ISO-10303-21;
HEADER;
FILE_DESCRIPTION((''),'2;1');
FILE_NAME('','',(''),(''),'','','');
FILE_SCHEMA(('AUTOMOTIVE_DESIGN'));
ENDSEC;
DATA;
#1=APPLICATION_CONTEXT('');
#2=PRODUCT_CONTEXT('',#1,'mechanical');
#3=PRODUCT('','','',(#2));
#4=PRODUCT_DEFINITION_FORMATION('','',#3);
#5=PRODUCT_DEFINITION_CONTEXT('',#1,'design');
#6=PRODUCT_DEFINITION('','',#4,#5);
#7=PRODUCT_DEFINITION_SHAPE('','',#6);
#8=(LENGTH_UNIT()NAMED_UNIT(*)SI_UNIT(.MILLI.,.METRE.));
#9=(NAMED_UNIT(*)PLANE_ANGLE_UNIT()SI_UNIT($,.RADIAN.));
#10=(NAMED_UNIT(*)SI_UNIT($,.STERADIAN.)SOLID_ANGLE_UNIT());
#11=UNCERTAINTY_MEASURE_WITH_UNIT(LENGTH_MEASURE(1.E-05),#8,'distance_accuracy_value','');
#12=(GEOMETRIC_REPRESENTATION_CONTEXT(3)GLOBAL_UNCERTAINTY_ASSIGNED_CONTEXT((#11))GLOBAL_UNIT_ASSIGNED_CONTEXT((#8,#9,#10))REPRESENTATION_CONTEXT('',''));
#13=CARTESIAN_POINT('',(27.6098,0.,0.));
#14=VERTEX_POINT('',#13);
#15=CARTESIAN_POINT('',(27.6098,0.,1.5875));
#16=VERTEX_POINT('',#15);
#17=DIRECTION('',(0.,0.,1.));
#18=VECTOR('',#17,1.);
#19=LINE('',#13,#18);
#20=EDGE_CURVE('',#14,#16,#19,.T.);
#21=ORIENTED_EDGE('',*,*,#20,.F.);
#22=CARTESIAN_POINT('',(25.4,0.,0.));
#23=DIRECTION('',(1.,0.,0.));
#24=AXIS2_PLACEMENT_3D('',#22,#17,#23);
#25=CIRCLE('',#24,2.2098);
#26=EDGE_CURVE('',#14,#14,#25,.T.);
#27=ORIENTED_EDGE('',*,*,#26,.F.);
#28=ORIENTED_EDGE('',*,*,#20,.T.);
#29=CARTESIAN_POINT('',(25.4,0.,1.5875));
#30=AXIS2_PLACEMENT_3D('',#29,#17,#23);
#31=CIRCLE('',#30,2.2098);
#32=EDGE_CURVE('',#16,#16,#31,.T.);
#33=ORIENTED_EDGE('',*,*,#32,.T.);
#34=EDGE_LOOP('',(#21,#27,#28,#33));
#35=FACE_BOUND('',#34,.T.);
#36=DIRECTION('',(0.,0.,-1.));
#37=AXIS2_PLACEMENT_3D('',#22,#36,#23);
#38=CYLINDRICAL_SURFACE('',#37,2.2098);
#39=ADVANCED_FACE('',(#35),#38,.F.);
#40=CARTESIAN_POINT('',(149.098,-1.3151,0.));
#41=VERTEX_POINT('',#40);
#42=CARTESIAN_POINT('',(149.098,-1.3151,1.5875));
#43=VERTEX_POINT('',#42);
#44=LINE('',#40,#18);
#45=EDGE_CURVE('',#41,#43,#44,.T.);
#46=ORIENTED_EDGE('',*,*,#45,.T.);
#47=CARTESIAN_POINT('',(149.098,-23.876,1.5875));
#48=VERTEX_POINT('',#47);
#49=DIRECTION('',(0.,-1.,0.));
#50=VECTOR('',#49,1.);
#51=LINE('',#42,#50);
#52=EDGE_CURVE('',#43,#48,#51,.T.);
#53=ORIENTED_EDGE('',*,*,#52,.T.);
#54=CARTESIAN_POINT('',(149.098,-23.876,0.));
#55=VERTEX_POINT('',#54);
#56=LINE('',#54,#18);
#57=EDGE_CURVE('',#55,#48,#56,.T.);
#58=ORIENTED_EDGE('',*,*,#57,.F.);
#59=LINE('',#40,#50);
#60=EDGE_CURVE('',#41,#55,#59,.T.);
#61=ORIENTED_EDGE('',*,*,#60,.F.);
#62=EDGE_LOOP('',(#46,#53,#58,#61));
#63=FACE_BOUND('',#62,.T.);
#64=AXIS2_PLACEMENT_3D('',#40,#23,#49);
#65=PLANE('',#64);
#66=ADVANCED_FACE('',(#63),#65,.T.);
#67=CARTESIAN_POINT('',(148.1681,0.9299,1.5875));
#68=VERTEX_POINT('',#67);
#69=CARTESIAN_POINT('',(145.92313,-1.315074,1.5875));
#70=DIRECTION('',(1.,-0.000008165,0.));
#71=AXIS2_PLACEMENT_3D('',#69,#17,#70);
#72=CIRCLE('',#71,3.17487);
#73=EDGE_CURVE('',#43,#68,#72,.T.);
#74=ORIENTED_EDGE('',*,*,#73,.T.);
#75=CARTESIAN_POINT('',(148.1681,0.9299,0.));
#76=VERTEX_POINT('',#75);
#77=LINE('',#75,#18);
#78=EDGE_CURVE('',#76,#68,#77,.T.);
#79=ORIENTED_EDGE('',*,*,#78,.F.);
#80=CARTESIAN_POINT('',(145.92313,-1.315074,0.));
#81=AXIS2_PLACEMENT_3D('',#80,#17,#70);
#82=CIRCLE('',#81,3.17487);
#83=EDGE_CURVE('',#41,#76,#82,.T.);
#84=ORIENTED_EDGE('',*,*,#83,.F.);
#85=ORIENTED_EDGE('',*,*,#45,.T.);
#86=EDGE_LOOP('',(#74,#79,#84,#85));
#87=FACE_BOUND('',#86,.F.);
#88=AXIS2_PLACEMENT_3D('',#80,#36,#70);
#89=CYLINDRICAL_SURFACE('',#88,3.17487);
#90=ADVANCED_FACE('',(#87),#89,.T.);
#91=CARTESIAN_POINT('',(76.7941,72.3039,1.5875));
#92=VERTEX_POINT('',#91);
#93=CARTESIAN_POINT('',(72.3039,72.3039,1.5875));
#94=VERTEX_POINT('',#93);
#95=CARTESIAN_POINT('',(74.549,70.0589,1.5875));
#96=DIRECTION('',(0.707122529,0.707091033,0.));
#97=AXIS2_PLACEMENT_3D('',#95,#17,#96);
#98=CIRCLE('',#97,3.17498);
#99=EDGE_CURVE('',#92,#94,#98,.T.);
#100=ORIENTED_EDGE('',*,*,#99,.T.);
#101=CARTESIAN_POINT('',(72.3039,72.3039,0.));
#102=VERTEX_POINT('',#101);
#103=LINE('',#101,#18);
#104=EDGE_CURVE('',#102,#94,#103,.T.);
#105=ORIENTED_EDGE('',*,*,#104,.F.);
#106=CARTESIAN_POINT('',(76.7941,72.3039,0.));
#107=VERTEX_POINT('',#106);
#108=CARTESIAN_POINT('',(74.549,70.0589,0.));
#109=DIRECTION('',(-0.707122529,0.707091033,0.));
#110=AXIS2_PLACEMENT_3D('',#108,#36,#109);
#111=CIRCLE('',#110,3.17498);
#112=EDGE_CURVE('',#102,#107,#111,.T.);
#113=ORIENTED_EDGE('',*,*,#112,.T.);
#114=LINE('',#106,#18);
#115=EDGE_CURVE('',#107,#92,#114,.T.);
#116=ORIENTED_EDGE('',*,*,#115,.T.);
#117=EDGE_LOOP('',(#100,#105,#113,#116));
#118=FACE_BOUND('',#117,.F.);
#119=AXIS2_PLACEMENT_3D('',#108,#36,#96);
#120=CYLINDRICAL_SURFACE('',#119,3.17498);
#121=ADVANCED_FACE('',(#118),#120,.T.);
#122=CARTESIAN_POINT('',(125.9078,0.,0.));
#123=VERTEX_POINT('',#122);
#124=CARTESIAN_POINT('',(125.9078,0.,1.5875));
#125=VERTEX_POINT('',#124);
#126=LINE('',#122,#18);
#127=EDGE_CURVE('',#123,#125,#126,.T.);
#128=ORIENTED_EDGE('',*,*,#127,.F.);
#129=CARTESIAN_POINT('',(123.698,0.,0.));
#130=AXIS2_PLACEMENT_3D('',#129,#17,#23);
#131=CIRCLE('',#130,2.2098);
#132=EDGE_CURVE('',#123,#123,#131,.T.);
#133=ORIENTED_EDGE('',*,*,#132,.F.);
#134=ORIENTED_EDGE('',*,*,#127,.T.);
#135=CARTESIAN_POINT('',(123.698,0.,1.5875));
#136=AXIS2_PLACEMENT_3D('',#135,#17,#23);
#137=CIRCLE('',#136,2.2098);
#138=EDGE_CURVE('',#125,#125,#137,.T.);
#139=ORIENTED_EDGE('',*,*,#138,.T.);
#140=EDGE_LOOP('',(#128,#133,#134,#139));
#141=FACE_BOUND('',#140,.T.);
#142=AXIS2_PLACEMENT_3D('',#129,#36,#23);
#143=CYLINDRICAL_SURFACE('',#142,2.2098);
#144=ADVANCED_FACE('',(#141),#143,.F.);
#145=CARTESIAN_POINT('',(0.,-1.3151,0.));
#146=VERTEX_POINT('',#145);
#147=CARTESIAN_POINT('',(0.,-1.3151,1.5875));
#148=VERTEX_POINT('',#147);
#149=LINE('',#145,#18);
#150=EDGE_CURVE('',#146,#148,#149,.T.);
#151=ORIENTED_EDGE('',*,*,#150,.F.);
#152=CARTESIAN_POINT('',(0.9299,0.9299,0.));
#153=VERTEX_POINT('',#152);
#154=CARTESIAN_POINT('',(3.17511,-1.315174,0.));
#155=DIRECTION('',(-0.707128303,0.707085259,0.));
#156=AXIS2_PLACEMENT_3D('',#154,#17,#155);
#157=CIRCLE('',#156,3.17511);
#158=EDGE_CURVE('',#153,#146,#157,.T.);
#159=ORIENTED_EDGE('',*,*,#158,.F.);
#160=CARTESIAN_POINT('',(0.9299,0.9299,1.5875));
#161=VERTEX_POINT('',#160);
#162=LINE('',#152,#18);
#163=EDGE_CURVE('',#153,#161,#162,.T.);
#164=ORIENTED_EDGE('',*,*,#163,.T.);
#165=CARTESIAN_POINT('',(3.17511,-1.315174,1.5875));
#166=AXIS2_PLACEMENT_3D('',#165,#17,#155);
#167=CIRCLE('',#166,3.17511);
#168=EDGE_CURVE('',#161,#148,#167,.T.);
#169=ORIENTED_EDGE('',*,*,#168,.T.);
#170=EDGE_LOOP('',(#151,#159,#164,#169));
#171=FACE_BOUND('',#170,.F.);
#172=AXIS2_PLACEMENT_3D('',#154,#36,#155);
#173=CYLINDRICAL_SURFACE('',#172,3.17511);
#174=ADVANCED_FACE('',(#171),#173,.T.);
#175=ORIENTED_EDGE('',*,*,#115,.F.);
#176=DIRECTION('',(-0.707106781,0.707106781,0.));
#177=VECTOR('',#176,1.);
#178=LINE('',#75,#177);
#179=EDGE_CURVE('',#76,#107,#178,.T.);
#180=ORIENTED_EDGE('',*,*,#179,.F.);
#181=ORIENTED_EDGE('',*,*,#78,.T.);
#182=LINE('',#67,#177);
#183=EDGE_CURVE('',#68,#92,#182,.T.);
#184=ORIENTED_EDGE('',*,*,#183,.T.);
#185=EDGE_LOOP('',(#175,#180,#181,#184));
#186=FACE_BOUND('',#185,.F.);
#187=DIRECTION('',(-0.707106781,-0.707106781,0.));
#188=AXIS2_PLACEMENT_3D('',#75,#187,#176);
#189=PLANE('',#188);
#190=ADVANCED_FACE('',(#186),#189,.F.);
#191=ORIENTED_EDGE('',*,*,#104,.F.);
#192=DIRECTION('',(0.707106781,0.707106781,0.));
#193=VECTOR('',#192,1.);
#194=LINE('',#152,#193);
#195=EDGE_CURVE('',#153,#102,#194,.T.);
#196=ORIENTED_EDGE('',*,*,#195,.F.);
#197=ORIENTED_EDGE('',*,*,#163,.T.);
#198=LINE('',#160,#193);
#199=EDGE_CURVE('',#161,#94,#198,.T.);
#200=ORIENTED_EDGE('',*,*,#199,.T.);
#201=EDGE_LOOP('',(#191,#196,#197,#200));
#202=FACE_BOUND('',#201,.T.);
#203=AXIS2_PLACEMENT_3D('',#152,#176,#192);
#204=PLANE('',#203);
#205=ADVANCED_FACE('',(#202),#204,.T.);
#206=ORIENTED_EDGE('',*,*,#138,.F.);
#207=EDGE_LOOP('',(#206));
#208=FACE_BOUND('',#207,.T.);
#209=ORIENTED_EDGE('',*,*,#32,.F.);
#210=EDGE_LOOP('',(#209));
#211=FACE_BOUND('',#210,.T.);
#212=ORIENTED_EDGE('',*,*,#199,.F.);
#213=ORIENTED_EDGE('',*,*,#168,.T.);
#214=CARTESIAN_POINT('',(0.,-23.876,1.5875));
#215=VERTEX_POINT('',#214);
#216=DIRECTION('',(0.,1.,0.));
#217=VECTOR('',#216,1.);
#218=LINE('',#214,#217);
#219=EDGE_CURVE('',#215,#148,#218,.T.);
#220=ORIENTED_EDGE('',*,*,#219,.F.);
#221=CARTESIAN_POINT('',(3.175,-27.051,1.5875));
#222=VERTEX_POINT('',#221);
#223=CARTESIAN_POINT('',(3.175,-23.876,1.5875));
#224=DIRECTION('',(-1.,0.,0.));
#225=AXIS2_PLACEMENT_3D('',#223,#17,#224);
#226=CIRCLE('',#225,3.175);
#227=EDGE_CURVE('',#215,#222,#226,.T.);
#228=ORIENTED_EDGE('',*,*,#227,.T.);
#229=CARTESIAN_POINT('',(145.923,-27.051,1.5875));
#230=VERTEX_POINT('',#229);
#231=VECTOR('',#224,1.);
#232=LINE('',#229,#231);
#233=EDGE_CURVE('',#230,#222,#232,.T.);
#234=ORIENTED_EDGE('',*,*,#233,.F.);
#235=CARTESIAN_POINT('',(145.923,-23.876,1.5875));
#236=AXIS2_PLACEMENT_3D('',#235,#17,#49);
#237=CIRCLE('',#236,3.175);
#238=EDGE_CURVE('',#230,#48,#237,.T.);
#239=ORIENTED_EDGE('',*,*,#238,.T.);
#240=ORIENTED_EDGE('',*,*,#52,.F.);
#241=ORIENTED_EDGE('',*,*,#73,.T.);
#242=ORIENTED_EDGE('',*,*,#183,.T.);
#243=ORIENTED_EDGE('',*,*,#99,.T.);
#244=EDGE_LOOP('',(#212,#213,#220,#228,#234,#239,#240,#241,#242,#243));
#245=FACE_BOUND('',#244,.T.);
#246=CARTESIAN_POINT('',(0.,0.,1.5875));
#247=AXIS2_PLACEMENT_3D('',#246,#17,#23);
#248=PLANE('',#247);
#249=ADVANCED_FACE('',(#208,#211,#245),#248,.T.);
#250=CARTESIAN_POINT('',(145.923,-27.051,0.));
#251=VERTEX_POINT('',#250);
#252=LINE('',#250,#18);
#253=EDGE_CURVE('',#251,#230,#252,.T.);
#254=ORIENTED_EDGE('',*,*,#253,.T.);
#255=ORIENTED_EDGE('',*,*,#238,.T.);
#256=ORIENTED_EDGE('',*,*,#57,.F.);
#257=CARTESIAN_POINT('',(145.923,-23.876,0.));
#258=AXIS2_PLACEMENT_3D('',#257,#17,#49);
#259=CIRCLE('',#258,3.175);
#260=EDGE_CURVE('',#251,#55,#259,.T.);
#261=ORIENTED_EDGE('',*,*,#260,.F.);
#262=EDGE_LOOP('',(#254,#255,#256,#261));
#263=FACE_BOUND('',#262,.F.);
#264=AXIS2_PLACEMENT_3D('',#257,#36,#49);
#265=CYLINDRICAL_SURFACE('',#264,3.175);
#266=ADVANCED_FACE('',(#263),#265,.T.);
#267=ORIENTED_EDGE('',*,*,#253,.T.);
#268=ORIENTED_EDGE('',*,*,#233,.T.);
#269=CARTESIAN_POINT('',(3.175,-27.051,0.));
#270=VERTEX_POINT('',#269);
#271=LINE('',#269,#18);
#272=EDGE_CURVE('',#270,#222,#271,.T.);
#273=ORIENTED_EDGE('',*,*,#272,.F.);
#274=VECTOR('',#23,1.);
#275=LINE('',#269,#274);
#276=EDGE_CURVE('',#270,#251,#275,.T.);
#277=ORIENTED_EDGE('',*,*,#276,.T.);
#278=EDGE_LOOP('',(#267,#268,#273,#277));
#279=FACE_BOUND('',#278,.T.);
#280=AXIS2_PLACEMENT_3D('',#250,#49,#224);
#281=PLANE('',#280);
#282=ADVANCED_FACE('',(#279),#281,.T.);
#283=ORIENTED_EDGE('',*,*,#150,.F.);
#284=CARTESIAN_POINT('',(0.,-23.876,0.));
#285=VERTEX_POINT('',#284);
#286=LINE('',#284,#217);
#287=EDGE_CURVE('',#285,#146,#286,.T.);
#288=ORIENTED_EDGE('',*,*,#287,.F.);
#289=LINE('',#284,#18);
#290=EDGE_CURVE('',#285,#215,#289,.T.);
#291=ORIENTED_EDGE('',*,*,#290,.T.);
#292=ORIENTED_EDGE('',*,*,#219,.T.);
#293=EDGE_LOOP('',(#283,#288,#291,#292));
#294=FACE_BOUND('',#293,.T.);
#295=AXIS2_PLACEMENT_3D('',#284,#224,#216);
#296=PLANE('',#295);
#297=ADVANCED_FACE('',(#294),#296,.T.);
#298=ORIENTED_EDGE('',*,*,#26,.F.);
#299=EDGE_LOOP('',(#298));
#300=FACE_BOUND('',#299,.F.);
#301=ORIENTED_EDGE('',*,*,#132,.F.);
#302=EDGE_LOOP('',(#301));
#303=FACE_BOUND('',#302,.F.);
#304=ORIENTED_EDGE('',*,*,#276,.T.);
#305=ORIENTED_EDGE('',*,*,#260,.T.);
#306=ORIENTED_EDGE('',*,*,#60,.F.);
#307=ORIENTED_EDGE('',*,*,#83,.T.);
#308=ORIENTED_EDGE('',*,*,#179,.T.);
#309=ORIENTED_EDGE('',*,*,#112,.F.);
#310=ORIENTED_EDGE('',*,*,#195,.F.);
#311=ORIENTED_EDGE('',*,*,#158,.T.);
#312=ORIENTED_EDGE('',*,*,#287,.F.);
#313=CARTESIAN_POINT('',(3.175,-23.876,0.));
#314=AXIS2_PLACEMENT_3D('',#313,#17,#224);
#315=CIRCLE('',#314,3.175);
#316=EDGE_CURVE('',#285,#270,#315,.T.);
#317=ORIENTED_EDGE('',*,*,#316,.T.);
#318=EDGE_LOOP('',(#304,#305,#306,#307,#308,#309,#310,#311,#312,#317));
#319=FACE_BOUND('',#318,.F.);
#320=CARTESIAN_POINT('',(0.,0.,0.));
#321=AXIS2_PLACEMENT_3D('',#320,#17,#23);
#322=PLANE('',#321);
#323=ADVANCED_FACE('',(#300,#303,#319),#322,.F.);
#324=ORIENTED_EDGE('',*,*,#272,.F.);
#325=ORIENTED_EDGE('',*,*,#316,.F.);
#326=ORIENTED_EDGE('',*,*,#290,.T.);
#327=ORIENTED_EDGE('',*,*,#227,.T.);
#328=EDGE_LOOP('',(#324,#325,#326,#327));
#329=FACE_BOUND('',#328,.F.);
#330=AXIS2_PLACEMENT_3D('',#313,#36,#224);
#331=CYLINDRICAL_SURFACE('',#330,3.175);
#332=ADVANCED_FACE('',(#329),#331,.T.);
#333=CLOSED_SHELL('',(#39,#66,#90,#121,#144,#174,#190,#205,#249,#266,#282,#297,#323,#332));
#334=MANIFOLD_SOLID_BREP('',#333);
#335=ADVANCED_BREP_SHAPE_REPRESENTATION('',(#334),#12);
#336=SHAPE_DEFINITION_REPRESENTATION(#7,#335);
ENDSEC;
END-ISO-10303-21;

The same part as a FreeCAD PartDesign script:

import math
import FreeCAD as App
import Part
import Sketcher

V = App.Vector
Q = App.Units.Quantity

doc = App.newDocument("Part")
params = doc.addObject("Spreadsheet::Sheet", "Params")
for row, (alias, value) in enumerate([
    ("sketch1_diameter", "0.174 in"),
    ("sketch1_radius", "0.125 in"),
    ("sketch1_width", "5.62 in"),
    ("pad1_length", "0.0625 in"),
], start=1):
    params.set(f"A{row}", alias)
    params.set(f"B{row}", "=" + value)
    params.setAlias(f"B{row}", alias)

body = doc.addObject("PartDesign::Body", "Body")

# Sketch on XY plane
sketch1 = body.newObject("Sketcher::SketchObject", "Sketch")
sketch1.AttachmentSupport = (doc.getObject("XY_Plane"), [""])
sketch1.MapMode = "FlatFace"
sketch1.addGeometry([
    Part.ArcOfCircle(Part.Circle(V(145.923, -23.876, 0), V(0, 0, 1), 3.175), math.radians(-90), math.radians(0)),  # 0
    Part.LineSegment(V(149.098, -23.876, 0), V(149.098, -1.3151, 0)),  # 1
    Part.ArcOfCircle(Part.Circle(V(145.923, -1.3151, 0), V(0, 0, 1), 3.175), math.radians(0), math.radians(44.998724)),  # 2
    Part.LineSegment(V(148.1681, 0.9299, 0), V(76.7941, 72.3039, 0)),  # 3
    Part.ArcOfCircle(Part.Circle(V(74.549, 70.0589, 0), V(0, 0, 1), 3.17498), math.radians(44.998724), math.radians(135.001276)),  # 4
    Part.LineSegment(V(72.3039, 72.3039, 0), V(0.9299, 0.9299, 0)),  # 5
    Part.ArcOfCircle(Part.Circle(V(3.175, -1.3151, 0), V(0, 0, 1), 3.17498), math.radians(135.001276), math.radians(180)),  # 6
    Part.LineSegment(V(0, -1.3151, 0), V(0, -23.876, 0)),  # 7
    Part.ArcOfCircle(Part.Circle(V(3.175, -23.876, 0), V(0, 0, 1), 3.175), math.radians(180), math.radians(270)),  # 8
    Part.LineSegment(V(3.175, -27.051, 0), V(145.923, -27.051, 0)),  # 9
    Part.Circle(V(123.698, 0, 0), V(0, 0, 1), 2.2098),  # 10
    Part.Circle(V(25.4, 0, 0), V(0, 0, 1), 2.2098),  # 11
], False)
sketch1.addConstraint([
    Sketcher.Constraint("Tangent", 0, 2, 1, 1),
    Sketcher.Constraint("Tangent", 1, 2, 2, 1),
    Sketcher.Constraint("Tangent", 2, 2, 3, 1),
    Sketcher.Constraint("Tangent", 3, 2, 4, 1),
    Sketcher.Constraint("Tangent", 4, 2, 5, 1),
    Sketcher.Constraint("Tangent", 5, 2, 6, 1),
    Sketcher.Constraint("Tangent", 6, 2, 7, 1),
    Sketcher.Constraint("Tangent", 7, 2, 8, 1),
    Sketcher.Constraint("Tangent", 8, 2, 9, 1),
    Sketcher.Constraint("Tangent", 9, 2, 0, 1),
    Sketcher.Constraint("Vertical", 1),
    Sketcher.Constraint("Vertical", 7),
    Sketcher.Constraint("Horizontal", 9),
    Sketcher.Constraint("Equal", 0, 2),
    Sketcher.Constraint("Equal", 2, 4),
    Sketcher.Constraint("Equal", 4, 6),
    Sketcher.Constraint("Equal", 6, 8),
    Sketcher.Constraint("Equal", 10, 11),
    Sketcher.Constraint("PointOnObject", 10, 3, -1),
    Sketcher.Constraint("PointOnObject", 11, 3, -1),
    Sketcher.Constraint("PointOnObject", 6, 2, -2),
    Sketcher.Constraint("Perpendicular", 3, 5),
    Sketcher.Constraint("Horizontal", 2, 3, 6, 3),
    Sketcher.Constraint("Horizontal", 3, 2, 4, 2),
    Sketcher.Constraint("Diameter", 10, Q("0.174 in")),
    Sketcher.Constraint("DistanceX", -1, 1, 11, 3, Q("1 in")),
    Sketcher.Constraint("Radius", 0, Q("0.125 in")),
    Sketcher.Constraint("DistanceX", 10, 3, 0, 2, Q("1 in")),
    Sketcher.Constraint("DistanceX", 9, 1, 9, 2, Q("5.62 in")),
    Sketcher.Constraint("DistanceY", 0, 3, -1, 1, Q("0.94 in")),
    Sketcher.Constraint("DistanceY", 1, 1, 1, 2, 22.561),
])
sketch1.setExpression("Constraints[24]", "Params.sketch1_diameter")
sketch1.setExpression("Constraints[26]", "Params.sketch1_radius")
sketch1.setExpression("Constraints[28]", "Params.sketch1_width")
pad1 = body.newObject("PartDesign::Pad", "Pad")
pad1.Profile = sketch1
pad1.setExpression("Length", "Params.pad1_length")

doc.recompute()
